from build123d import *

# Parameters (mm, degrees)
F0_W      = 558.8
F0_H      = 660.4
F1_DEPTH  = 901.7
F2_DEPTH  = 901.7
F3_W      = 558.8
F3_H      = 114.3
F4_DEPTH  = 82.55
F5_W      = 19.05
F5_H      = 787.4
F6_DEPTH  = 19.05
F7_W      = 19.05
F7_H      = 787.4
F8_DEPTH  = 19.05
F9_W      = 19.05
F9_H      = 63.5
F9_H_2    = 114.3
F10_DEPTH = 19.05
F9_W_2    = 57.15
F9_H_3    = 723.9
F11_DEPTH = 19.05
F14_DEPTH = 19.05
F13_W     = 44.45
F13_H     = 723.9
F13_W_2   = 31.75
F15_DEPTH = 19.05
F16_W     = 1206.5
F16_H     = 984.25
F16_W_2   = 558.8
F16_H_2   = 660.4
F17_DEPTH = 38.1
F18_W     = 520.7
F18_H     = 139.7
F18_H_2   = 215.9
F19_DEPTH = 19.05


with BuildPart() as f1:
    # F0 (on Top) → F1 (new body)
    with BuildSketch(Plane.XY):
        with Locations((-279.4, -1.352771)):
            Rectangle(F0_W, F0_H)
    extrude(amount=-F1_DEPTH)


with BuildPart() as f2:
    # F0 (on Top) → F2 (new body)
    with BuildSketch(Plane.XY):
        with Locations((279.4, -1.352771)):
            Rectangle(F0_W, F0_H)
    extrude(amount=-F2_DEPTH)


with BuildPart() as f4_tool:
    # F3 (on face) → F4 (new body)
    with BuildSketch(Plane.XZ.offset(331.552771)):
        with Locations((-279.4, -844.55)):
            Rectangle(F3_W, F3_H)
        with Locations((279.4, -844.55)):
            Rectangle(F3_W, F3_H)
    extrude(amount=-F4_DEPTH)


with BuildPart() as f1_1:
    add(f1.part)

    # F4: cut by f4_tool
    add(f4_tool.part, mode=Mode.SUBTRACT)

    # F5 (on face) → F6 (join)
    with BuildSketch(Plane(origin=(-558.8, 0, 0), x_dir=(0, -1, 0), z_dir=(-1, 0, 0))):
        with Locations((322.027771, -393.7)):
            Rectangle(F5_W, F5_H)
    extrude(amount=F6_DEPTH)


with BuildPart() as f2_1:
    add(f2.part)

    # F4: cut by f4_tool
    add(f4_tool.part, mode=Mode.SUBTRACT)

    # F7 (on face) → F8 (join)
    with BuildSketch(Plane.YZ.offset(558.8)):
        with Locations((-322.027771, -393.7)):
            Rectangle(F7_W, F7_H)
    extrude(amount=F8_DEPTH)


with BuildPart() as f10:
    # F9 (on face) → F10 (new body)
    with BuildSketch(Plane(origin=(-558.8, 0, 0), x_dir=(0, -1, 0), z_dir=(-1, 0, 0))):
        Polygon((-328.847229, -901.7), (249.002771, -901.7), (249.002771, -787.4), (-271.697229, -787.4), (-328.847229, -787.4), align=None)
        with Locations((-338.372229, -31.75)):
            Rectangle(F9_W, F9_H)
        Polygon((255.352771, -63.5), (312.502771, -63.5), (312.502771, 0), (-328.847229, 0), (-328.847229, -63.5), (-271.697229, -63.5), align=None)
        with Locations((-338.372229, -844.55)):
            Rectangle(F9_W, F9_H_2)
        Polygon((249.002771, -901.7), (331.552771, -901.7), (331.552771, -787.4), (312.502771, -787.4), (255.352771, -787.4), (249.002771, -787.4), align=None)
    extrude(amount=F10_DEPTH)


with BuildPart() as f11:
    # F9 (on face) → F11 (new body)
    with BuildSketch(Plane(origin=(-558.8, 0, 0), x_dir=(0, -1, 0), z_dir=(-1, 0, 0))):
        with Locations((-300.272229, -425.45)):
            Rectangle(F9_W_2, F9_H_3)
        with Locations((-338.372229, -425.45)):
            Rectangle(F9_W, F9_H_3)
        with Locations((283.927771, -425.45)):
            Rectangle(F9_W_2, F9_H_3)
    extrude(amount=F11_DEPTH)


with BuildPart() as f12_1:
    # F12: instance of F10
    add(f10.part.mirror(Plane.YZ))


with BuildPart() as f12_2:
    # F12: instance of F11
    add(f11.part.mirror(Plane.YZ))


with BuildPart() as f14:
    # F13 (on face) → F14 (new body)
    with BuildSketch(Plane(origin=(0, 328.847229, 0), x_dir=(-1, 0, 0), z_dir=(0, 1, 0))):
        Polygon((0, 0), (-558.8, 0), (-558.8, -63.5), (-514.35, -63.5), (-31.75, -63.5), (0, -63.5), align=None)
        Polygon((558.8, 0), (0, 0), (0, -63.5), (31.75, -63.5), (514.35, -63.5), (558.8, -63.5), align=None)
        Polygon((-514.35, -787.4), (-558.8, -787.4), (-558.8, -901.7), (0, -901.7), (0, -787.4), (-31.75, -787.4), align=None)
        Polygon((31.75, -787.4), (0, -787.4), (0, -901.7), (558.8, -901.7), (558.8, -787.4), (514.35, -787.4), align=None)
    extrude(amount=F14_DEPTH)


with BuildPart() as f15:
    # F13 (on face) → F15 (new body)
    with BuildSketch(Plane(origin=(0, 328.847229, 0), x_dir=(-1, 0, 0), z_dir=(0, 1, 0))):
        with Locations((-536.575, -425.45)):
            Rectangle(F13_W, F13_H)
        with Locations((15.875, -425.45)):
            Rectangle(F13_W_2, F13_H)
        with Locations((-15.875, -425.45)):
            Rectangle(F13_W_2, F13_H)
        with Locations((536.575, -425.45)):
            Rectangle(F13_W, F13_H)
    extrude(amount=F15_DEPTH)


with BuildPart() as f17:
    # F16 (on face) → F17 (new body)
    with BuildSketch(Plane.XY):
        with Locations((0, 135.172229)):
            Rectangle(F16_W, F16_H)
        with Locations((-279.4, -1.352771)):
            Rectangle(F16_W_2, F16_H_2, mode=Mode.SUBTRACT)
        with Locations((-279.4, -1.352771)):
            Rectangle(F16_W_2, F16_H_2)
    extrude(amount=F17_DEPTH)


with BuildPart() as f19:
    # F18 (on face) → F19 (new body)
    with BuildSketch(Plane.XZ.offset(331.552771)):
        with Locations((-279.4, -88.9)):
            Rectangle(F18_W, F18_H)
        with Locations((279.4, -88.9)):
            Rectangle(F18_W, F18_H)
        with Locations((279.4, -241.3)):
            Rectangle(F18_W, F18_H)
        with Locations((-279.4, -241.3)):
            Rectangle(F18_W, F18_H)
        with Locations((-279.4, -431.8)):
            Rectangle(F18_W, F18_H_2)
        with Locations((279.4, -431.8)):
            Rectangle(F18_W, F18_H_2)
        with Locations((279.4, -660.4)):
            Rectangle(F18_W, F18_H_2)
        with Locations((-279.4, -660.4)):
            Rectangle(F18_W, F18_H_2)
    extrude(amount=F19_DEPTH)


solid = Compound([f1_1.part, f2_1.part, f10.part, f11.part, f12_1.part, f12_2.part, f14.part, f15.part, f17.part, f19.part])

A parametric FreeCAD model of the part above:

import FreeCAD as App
import Part
import Sketcher
Q = App.Units.Quantity

doc = App.newDocument("Part")
body = doc.addObject("PartDesign::Body", "Body")

# Sketch on XY plane
sketch1 = body.newObject("Sketcher::SketchObject", "Sketch")
sketch1.AttachmentSupport = (doc.getObject("XY_Plane"), [""])
sketch1.MapMode = "FlatFace"
sketch1.addGeometry(Part.LineSegment(App.Vector(-559, 329, 0), App.Vector(-559, -332, 0)), False)
sketch1.addGeometry(Part.LineSegment(App.Vector(-559, -332, 0), App.Vector(0, -332, 0)), False)
sketch1.addGeometry(Part.LineSegment(App.Vector(0, -332, 0), App.Vector(0, 329, 0)), False)
sketch1.addGeometry(Part.LineSegment(App.Vector(0, 329, 0), App.Vector(-559, 329, 0)), False)
sketch1.addConstraint(Sketcher.Constraint("Coincident", 0, 2, 1, 1))
sketch1.addConstraint(Sketcher.Constraint("Coincident", 1, 2, 2, 1))
sketch1.addConstraint(Sketcher.Constraint("Coincident", 2, 2, 3, 1))
sketch1.addConstraint(Sketcher.Constraint("Coincident", 3, 2, 0, 1))
sketch1.addConstraint(Sketcher.Constraint("Vertical", 0))
sketch1.addConstraint(Sketcher.Constraint("Horizontal", 1))
sketch1.addConstraint(Sketcher.Constraint("Vertical", 2))
sketch1.addConstraint(Sketcher.Constraint("Horizontal", 3))
sketch1.addConstraint(Sketcher.Constraint("PointOnObject", 1, 2, -2))
sketch1.addConstraint(Sketcher.Constraint("DistanceX", 1, 1, 1, 2, Q("22 in")))
sketch1.addConstraint(Sketcher.Constraint("DistanceY", 0, 2, 0, 1, Q("26 in")))
sketch1.addConstraint(Sketcher.Constraint("DistanceY", 0, 2, -1, 1, 331.552771))
pad1 = body.newObject("PartDesign::Pad", "Pad")
pad1.Profile = sketch1
pad1.Length = Q("35.5 in")
pad1.Reversed = True
body2 = doc.addObject("PartDesign::Body", "Body001")

# Sketch on XY plane
sketch2 = body2.newObject("Sketcher::SketchObject", "Sketch001")
sketch2.AttachmentSupport = (doc.getObject("XY_Plane001"), [""])
sketch2.MapMode = "FlatFace"
sketch2.addGeometry(Part.LineSegment(App.Vector(0, 329, 0), App.Vector(0, -332, 0)), False)
sketch2.addGeometry(Part.LineSegment(App.Vector(0, -332, 0), App.Vector(559, -332, 0)), False)
sketch2.addGeometry(Part.LineSegment(App.Vector(559, -332, 0), App.Vector(559, 329, 0)), False)
sketch2.addGeometry(Part.LineSegment(App.Vector(559, 329, 0), App.Vector(0, 329, 0)), False)
sketch2.addConstraint(Sketcher.Constraint("Coincident", 0, 2, 1, 1))
sketch2.addConstraint(Sketcher.Constraint("Coincident", 1, 2, 2, 1))
sketch2.addConstraint(Sketcher.Constraint("Coincident", 2, 2, 3, 1))
sketch2.addConstraint(Sketcher.Constraint("Coincident", 3, 2, 0, 1))
sketch2.addConstraint(Sketcher.Constraint("Vertical", 0))
sketch2.addConstraint(Sketcher.Constraint("Horizontal", 1))
sketch2.addConstraint(Sketcher.Constraint("Vertical", 2))
sketch2.addConstraint(Sketcher.Constraint("Horizontal", 3))
sketch2.addConstraint(Sketcher.Constraint("PointOnObject", 0, 2, -2))
sketch2.addConstraint(Sketcher.Constraint("DistanceX", 1, 1, 1, 2, Q("22 in")))
sketch2.addConstraint(Sketcher.Constraint("DistanceY", 0, 2, 0, 1, Q("26 in")))
sketch2.addConstraint(Sketcher.Constraint("DistanceY", 0, 2, -1, 1, 331.552771))
pad2 = body2.newObject("PartDesign::Pad", "Pad001")
pad2.Profile = sketch2
pad2.Length = Q("35.5 in")
pad2.Reversed = True
body3 = doc.addObject("PartDesign::Body", "Body002")

# Sketch on XZ plane
sketch3 = body3.newObject("Sketcher::SketchObject", "Sketch002")
sketch3.AttachmentSupport = (doc.getObject("XZ_Plane002"), [""])
sketch3.MapMode = "FlatFace"
sketch3.AttachmentOffset = App.Placement(App.Vector(0, 0, 331.552771), App.Rotation())
sketch3.addGeometry(Part.LineSegment(App.Vector(-559, -787, 0), App.Vector(-559, -902, 0)), False)
sketch3.addGeometry(Part.LineSegment(App.Vector(-559, -902, 0), App.Vector(559, -902, 0)), False)
sketch3.addGeometry(Part.LineSegment(App.Vector(559, -902, 0), App.Vector(559, -787, 0)), False)
sketch3.addGeometry(Part.LineSegment(App.Vector(559, -787, 0), App.Vector(-559, -787, 0)), False)
sketch3.addConstraint(Sketcher.Constraint("Coincident", 0, 2, 1, 1))
sketch3.addConstraint(Sketcher.Constraint("Coincident", 1, 2, 2, 1))
sketch3.addConstraint(Sketcher.Constraint("Coincident", 2, 2, 3, 1))
sketch3.addConstraint(Sketcher.Constraint("Coincident", 3, 2, 0, 1))
sketch3.addConstraint(Sketcher.Constraint("Vertical", 0))
sketch3.addConstraint(Sketcher.Constraint("Horizontal", 1))
sketch3.addConstraint(Sketcher.Constraint("Vertical", 2))
sketch3.addConstraint(Sketcher.Constraint("Horizontal", 3))
sketch3.addConstraint(Sketcher.Constraint("DistanceX", 1, 1, 1, 2, Q("44 in")))
sketch3.addConstraint(Sketcher.Constraint("DistanceY", 0, 2, 0, 1, Q("4.5 in")))
sketch3.addConstraint(Sketcher.Constraint("DistanceX", 0, 2, -1, 1, Q("22 in")))
sketch3.addConstraint(Sketcher.Constraint("DistanceY", 2, 2, -1, 1, Q("31 in")))
pad3 = body3.newObject("PartDesign::Pad", "Pad002")
pad3.Profile = sketch3
pad3.Length = Q("3.25 in")
pad3.Reversed = True
doc.recompute()

body4 = doc.addObject("PartDesign::Body", "Body003")
body4.BaseFeature = body3
boolean = body.newObject("PartDesign::Boolean", "Boolean")
boolean.Type = "Cut"
boolean.addObjects([body4])
doc.recompute()

# Sketch on YZ plane
sketch4 = body.newObject("Sketcher::SketchObject", "Sketch003")
sketch4.AttachmentSupport = (doc.getObject("YZ_Plane"), [""])
sketch4.MapMode = "FlatFace"
sketch4.AttachmentOffset = App.Placement(App.Vector(0, 0, -22 * 25.4), App.Rotation())
sketch4.addGeometry(Part.LineSegment(App.Vector(-313, 0, 0), App.Vector(-313, -787, 0)), False)
sketch4.addGeometry(Part.LineSegment(App.Vector(-313, -787, 0), App.Vector(-332, -787, 0)), False)
sketch4.addGeometry(Part.LineSegment(App.Vector(-332, -787, 0), App.Vector(-332, 0, 0)), False)
sketch4.addGeometry(Part.LineSegment(App.Vector(-332, 0, 0), App.Vector(-313, 0, 0)), False)
sketch4.addConstraint(Sketcher.Constraint("Coincident", 0, 2, 1, 1))
sketch4.addConstraint(Sketcher.Constraint("Coincident", 1, 2, 2, 1))
sketch4.addConstraint(Sketcher.Constraint("Coincident", 2, 2, 3, 1))
sketch4.addConstraint(Sketcher.Constraint("Coincident", 3, 2, 0, 1))
sketch4.addConstraint(Sketcher.Constraint("Vertical", 0))
sketch4.addConstraint(Sketcher.Constraint("Horizontal", 1))
sketch4.addConstraint(Sketcher.Constraint("Vertical", 2))
sketch4.addConstraint(Sketcher.Constraint("Horizontal", 3))
sketch4.addConstraint(Sketcher.Constraint("PointOnObject", 2, 2, -1))
sketch4.addConstraint(Sketcher.Constraint("DistanceY", 0, 2, 0, 1, Q("31 in")))
sketch4.addConstraint(Sketcher.Constraint("DistanceX", 1, 2, 1, 1, Q("0.75 in")))
sketch4.addConstraint(Sketcher.Constraint("DistanceX", 0, 2, -1, 1, 312.502771))
pad4 = body.newObject("PartDesign::Pad", "Pad003")
pad4.Profile = sketch4
pad4.Length = Q("0.75 in")
pad4.Reversed = True
doc.recompute()

boolean2 = body2.newObject("PartDesign::Boolean", "Boolean001")
boolean2.Type = "Cut"
boolean2.addObjects([body3])

# Sketch on YZ plane
sketch5 = body2.newObject("Sketcher::SketchObject", "Sketch004")
sketch5.AttachmentSupport = (doc.getObject("YZ_Plane001"), [""])
sketch5.MapMode = "FlatFace"
sketch5.AttachmentOffset = App.Placement(App.Vector(0, 0, 22 * 25.4), App.Rotation())
sketch5.addGeometry(Part.LineSegment(App.Vector(-332, 0, 0), App.Vector(-332, -787, 0)), False)
sketch5.addGeometry(Part.LineSegment(App.Vector(-332, -787, 0), App.Vector(-313, -787, 0)), False)
sketch5.addGeometry(Part.LineSegment(App.Vector(-313, -787, 0), App.Vector(-313, 0, 0)), False)
sketch5.addGeometry(Part.LineSegment(App.Vector(-313, 0, 0), App.Vector(-332, 0, 0)), False)
sketch5.addConstraint(Sketcher.Constraint("Coincident", 0, 2, 1, 1))
sketch5.addConstraint(Sketcher.Constraint("Coincident", 1, 2, 2, 1))
sketch5.addConstraint(Sketcher.Constraint("Coincident", 2, 2, 3, 1))
sketch5.addConstraint(Sketcher.Constraint("Coincident", 3, 2, 0, 1))
sketch5.addConstraint(Sketcher.Constraint("Vertical", 0))
sketch5.addConstraint(Sketcher.Constraint("Horizontal", 1))
sketch5.addConstraint(Sketcher.Constraint("Vertical", 2))
sketch5.addConstraint(Sketcher.Constraint("Horizontal", 3))
sketch5.addConstraint(Sketcher.Constraint("PointOnObject", 2, 2, -1))
sketch5.addConstraint(Sketcher.Constraint("DistanceY", 0, 2, 0, 1, Q("31 in")))
sketch5.addConstraint(Sketcher.Constraint("DistanceX", 1, 1, 1, 2, Q("0.75 in")))
sketch5.addConstraint(Sketcher.Constraint("DistanceX", 0, 2, -1, 1, 331.552771))
pad5 = body2.newObject("PartDesign::Pad", "Pad004")
pad5.Profile = sketch5
pad5.Length = Q("0.75 in")
body5 = doc.addObject("PartDesign::Body", "Body004")
body5.AllowCompound = True

# Sketch on YZ plane
sketch6 = body5.newObject("Sketcher::SketchObject", "Sketch005")
sketch6.AttachmentSupport = (doc.getObject("YZ_Plane004"), [""])
sketch6.MapMode = "FlatFace"
sketch6.AttachmentOffset = App.Placement(App.Vector(0, 0, -22 * 25.4), App.Rotation())
sketch6.addGeometry(Part.LineSegment(App.Vector(348, -787, 0), App.Vector(348, -902, 0)), False)
sketch6.addGeometry(Part.LineSegment(App.Vector(348, -902, 0), App.Vector(-332, -902, 0)), False)
sketch6.addGeometry(Part.LineSegment(App.Vector(-332, -902, 0), App.Vector(-332, -787, 0)), False)
sketch6.addGeometry(Part.LineSegment(App.Vector(-332, -787, 0), App.Vector(348, -787, 0)), False)
sketch6.addGeometry(Part.LineSegment(App.Vector(348, 0, 0), App.Vector(348, -64, 0)), False)
sketch6.addGeometry(Part.LineSegment(App.Vector(348, -64, 0), App.Vector(-313, -64, 0)), False)
sketch6.addGeometry(Part.LineSegment(App.Vector(-313, -64, 0), App.Vector(-313, 0, 0)), False)
sketch6.addGeometry(Part.LineSegment(App.Vector(-313, 0, 0), App.Vector(348, 0, 0)), False)
sketch6.addConstraint(Sketcher.Constraint("Coincident", 0, 2, 1, 1))
sketch6.addConstraint(Sketcher.Constraint("Coincident", 1, 2, 2, 1))
sketch6.addConstraint(Sketcher.Constraint("Coincident", 2, 2, 3, 1))
sketch6.addConstraint(Sketcher.Constraint("Coincident", 3, 2, 0, 1))
sketch6.addConstraint(Sketcher.Constraint("Coincident", 4, 2, 5, 1))
sketch6.addConstraint(Sketcher.Constraint("Coincident", 5, 2, 6, 1))
sketch6.addConstraint(Sketcher.Constraint("Coincident", 6, 2, 7, 1))
sketch6.addConstraint(Sketcher.Constraint("Coincident", 7, 2, 4, 1))
sketch6.addConstraint(Sketcher.Constraint("Vertical", 0))
sketch6.addConstraint(Sketcher.Constraint("Horizontal", 1))
sketch6.addConstraint(Sketcher.Constraint("Vertical", 2))
sketch6.addConstraint(Sketcher.Constraint("Horizontal", 3))
sketch6.addConstraint(Sketcher.Constraint("Vertical", 4))
sketch6.addConstraint(Sketcher.Constraint("Horizontal", 5))
sketch6.addConstraint(Sketcher.Constraint("Vertical", 6))
sketch6.addConstraint(Sketcher.Constraint("Horizontal", 7))
sketch6.addConstraint(Sketcher.Constraint("PointOnObject", 6, 2, -1))
sketch6.addConstraint(Sketcher.Constraint("Vertical", 3, 2, 4, 2))
sketch6.addConstraint(Sketcher.Constraint("DistanceX", 5, 2, 5, 1, Q("26 in")))
sketch6.addConstraint(Sketcher.Constraint("DistanceY", 0, 2, 0, 1, Q("4.5 in")))
sketch6.addConstraint(Sketcher.Constraint("DistanceY", 4, 2, 4, 1, Q("2.5 in")))
sketch6.addConstraint(Sketcher.Constraint("DistanceY", 2, 2, -1, 1, Q("31 in")))
sketch6.addConstraint(Sketcher.Constraint("DistanceX", 1, 2, 1, 1, Q("26.75 in")))
sketch6.addConstraint(Sketcher.Constraint("DistanceX", -1, 1, 0, 2, 347.897229))
pad6 = body5.newObject("PartDesign::Pad", "Pad005")
pad6.Profile = sketch6
pad6.Length = Q("0.75 in")
pad6.Reversed = True
body6 = doc.addObject("PartDesign::Body", "Body005")
body6.AllowCompound = True

# Sketch on YZ plane
sketch7 = body6.newObject("Sketcher::SketchObject", "Sketch006")
sketch7.AttachmentSupport = (doc.getObject("YZ_Plane005"), [""])
sketch7.MapMode = "FlatFace"
sketch7.AttachmentOffset = App.Placement(App.Vector(0, 0, -22 * 25.4), App.Rotation())
sketch7.addGeometry(Part.LineSegment(App.Vector(272, -787, 0), App.Vector(272, -64, 0)), False)
sketch7.addGeometry(Part.LineSegment(App.Vector(272, -64, 0), App.Vector(348, -64, 0)), False)
sketch7.addGeometry(Part.LineSegment(App.Vector(348, -64, 0), App.Vector(348, -787, 0)), False)
sketch7.addGeometry(Part.LineSegment(App.Vector(348, -787, 0), App.Vector(272, -787, 0)), False)
sketch7.addGeometry(Part.LineSegment(App.Vector(-255, -64, 0), App.Vector(-255, -787, 0)), False)
sketch7.addGeometry(Part.LineSegment(App.Vector(-255, -787, 0), App.Vector(-313, -787, 0)), False)
sketch7.addGeometry(Part.LineSegment(App.Vector(-313, -787, 0), App.Vector(-313, -64, 0)), False)
sketch7.addGeometry(Part.LineSegment(App.Vector(-313, -64, 0), App.Vector(-255, -64, 0)), False)
sketch7.addConstraint(Sketcher.Constraint("Coincident", 0, 2, 1, 1))
sketch7.addConstraint(Sketcher.Constraint("Coincident", 1, 2, 2, 1))
sketch7.addConstraint(Sketcher.Constraint("Coincident", 2, 2, 3, 1))
sketch7.addConstraint(Sketcher.Constraint("Coincident", 3, 2, 0, 1))
sketch7.addConstraint(Sketcher.Constraint("Coincident", 4, 2, 5, 1))
sketch7.addConstraint(Sketcher.Constraint("Coincident", 5, 2, 6, 1))
sketch7.addConstraint(Sketcher.Constraint("Coincident", 6, 2, 7, 1))
sketch7.addConstraint(Sketcher.Constraint("Coincident", 7, 2, 4, 1))
sketch7.addConstraint(Sketcher.Constraint("Vertical", 0))
sketch7.addConstraint(Sketcher.Constraint("Horizontal", 1))
sketch7.addConstraint(Sketcher.Constraint("Vertical", 2))
sketch7.addConstraint(Sketcher.Constraint("Horizontal", 3))
sketch7.addConstraint(Sketcher.Constraint("Vertical", 4))
sketch7.addConstraint(Sketcher.Constraint("Horizontal", 5))
sketch7.addConstraint(Sketcher.Constraint("Vertical", 6))
sketch7.addConstraint(Sketcher.Constraint("Horizontal", 7))
sketch7.addConstraint(Sketcher.Constraint("Horizontal", 3, 2, 4, 2))
sketch7.addConstraint(Sketcher.Constraint("Horizontal", 1, 2, 6, 2))
sketch7.addConstraint(Sketcher.Constraint("DistanceX", 1, 1, 1, 2, Q("3 in")))
sketch7.addConstraint(Sketcher.Constraint("DistanceY", 0, 1, 0, 2, Q("28.5 in")))
sketch7.addConstraint(Sketcher.Constraint("DistanceY", 2, 2, -1, 1, Q("31 in")))
sketch7.addConstraint(Sketcher.Constraint("DistanceX", 5, 2, 3, 2, Q("23 in")))
sketch7.addConstraint(Sketcher.Constraint("DistanceX", 5, 2, 5, 1, Q("2.25 in")))
sketch7.addConstraint(Sketcher.Constraint("DistanceX", -1, 1, 0, 2, 271.697229))
pad7 = body6.newObject("PartDesign::Pad", "Pad006")
pad7.Profile = sketch7
pad7.Length = Q("0.75 in")
pad7.Reversed = True
body7 = doc.addObject("PartDesign::Body", "Body006")
body7.AllowCompound = True
doc.recompute()

mirroring = doc.addObject("Part::Mirroring", "Mirroring")
mirroring.Source = body5
mirroring.Base = App.Vector(0, 0, 0)
mirroring.Normal = App.Vector(1, 0, 0)
body7.BaseFeature = mirroring
doc.recompute()
body8 = doc.addObject("PartDesign::Body", "Body007")
body8.AllowCompound = True
doc.recompute()

mirroring2 = doc.addObject("Part::Mirroring", "Mirroring001")
mirroring2.Source = body6
mirroring2.Base = App.Vector(0, 0, 0)
mirroring2.Normal = App.Vector(1, 0, 0)
body8.BaseFeature = mirroring2
doc.recompute()
body9 = doc.addObject("PartDesign::Body", "Body008")
body9.AllowCompound = True

# Sketch on XZ plane
sketch8 = body9.newObject("Sketcher::SketchObject", "Sketch007")
sketch8.AttachmentSupport = (doc.getObject("XZ_Plane008"), [""])
sketch8.MapMode = "FlatFace"
sketch8.AttachmentOffset = App.Placement(App.Vector(0, 0, -328.847229), App.Rotation())
sketch8.addGeometry(Part.LineSegment(App.Vector(559, 0, 0), App.Vector(559, -64, 0)), False)
sketch8.addGeometry(Part.LineSegment(App.Vector(559, -64, 0), App.Vector(-559, -64, 0)), False)
sketch8.addGeometry(Part.LineSegment(App.Vector(-559, -64, 0), App.Vector(-559, 0, 0)), False)
sketch8.addGeometry(Part.LineSegment(App.Vector(-559, 0, 0), App.Vector(559, 0, 0)), False)
sketch8.addGeometry(Part.LineSegment(App.Vector(559, -787, 0), App.Vector(559, -902, 0)), False)
sketch8.addGeometry(Part.LineSegment(App.Vector(559, -902, 0), App.Vector(-559, -902, 0)), False)
sketch8.addGeometry(Part.LineSegment(App.Vector(-559, -902, 0), App.Vector(-559, -787, 0)), False)
sketch8.addGeometry(Part.LineSegment(App.Vector(-559, -787, 0), App.Vector(559, -787, 0)), False)
sketch8.addConstraint(Sketcher.Constraint("Coincident", 0, 2, 1, 1))
sketch8.addConstraint(Sketcher.Constraint("Coincident", 1, 2, 2, 1))
sketch8.addConstraint(Sketcher.Constraint("Coincident", 2, 2, 3, 1))
sketch8.addConstraint(Sketcher.Constraint("Coincident", 3, 2, 0, 1))
sketch8.addConstraint(Sketcher.Constraint("Coincident", 4, 2, 5, 1))
sketch8.addConstraint(Sketcher.Constraint("Coincident", 5, 2, 6, 1))
sketch8.addConstraint(Sketcher.Constraint("Coincident", 6, 2, 7, 1))
sketch8.addConstraint(Sketcher.Constraint("Coincident", 7, 2, 4, 1))
sketch8.addConstraint(Sketcher.Constraint("Vertical", 0))
sketch8.addConstraint(Sketcher.Constraint("Horizontal", 1))
sketch8.addConstraint(Sketcher.Constraint("Vertical", 2))
sketch8.addConstraint(Sketcher.Constraint("Horizontal", 3))
sketch8.addConstraint(Sketcher.Constraint("Vertical", 4))
sketch8.addConstraint(Sketcher.Constraint("Horizontal", 5))
sketch8.addConstraint(Sketcher.Constraint("Vertical", 6))
sketch8.addConstraint(Sketcher.Constraint("Horizontal", 7))
sketch8.addConstraint(Sketcher.Constraint("Symmetric", 2, 2, 3, 2, -1, 1))
sketch8.addConstraint(Sketcher.Constraint("Vertical", 3, 2, 4, 2))
sketch8.addConstraint(Sketcher.Constraint("Vertical", 2, 2, 5, 2))
sketch8.addConstraint(Sketcher.Constraint("DistanceX", 1, 2, 1, 1, Q("44 in")))
sketch8.addConstraint(Sketcher.Constraint("DistanceY", 0, 2, 0, 1, Q("2.5 in")))
sketch8.addConstraint(Sketcher.Constraint("DistanceY", 4, 2, 4, 1, Q("4.5 in")))
sketch8.addConstraint(Sketcher.Constraint("DistanceY", 6, 2, -1, 1, Q("31 in")))
pad8 = body9.newObject("PartDesign::Pad", "Pad007")
pad8.Profile = sketch8
pad8.Length = Q("0.75 in")
pad8.Reversed = True
body10 = doc.addObject("PartDesign::Body", "Body009")
body10.AllowCompound = True

# Sketch on XZ plane
sketch9 = body10.newObject("Sketcher::SketchObject", "Sketch008")
sketch9.AttachmentSupport = (doc.getObject("XZ_Plane009"), [""])
sketch9.MapMode = "FlatFace"
sketch9.AttachmentOffset = App.Placement(App.Vector(0, 0, -328.847229), App.Rotation())
sketch9.addGeometry(Part.LineSegment(App.Vector(559, -64, 0), App.Vector(559, -787, 0)), False)
sketch9.addGeometry(Part.LineSegment(App.Vector(559, -787, 0), App.Vector(514, -787, 0)), False)
sketch9.addGeometry(Part.LineSegment(App.Vector(514, -787, 0), App.Vector(514, -64, 0)), False)
sketch9.addGeometry(Part.LineSegment(App.Vector(514, -64, 0), App.Vector(559, -64, 0)), False)
sketch9.addGeometry(Part.LineSegment(App.Vector(-32, -787, 0), App.Vector(-32, -64, 0)), False)
sketch9.addGeometry(Part.LineSegment(App.Vector(-32, -64, 0), App.Vector(32, -64, 0)), False)
sketch9.addGeometry(Part.LineSegment(App.Vector(32, -64, 0), App.Vector(32, -787, 0)), False)
sketch9.addGeometry(Part.LineSegment(App.Vector(32, -787, 0), App.Vector(-32, -787, 0)), False)
sketch9.addGeometry(Part.LineSegment(App.Vector(-514, -64, 0), App.Vector(-514, -787, 0)), False)
sketch9.addGeometry(Part.LineSegment(App.Vector(-514, -787, 0), App.Vector(-559, -787, 0)), False)
sketch9.addGeometry(Part.LineSegment(App.Vector(-559, -787, 0), App.Vector(-559, -64, 0)), False)
sketch9.addGeometry(Part.LineSegment(App.Vector(-559, -64, 0), App.Vector(-514, -64, 0)), False)
sketch9.addConstraint(Sketcher.Constraint("Coincident", 0, 2, 1, 1))
sketch9.addConstraint(Sketcher.Constraint("Coincident", 1, 2, 2, 1))
sketch9.addConstraint(Sketcher.Constraint("Coincident", 2, 2, 3, 1))
sketch9.addConstraint(Sketcher.Constraint("Coincident", 3, 2, 0, 1))
sketch9.addConstraint(Sketcher.Constraint("Coincident", 4, 2, 5, 1))
sketch9.addConstraint(Sketcher.Constraint("Coincident", 5, 2, 6, 1))
sketch9.addConstraint(Sketcher.Constraint("Coincident", 6, 2, 7, 1))
sketch9.addConstraint(Sketcher.Constraint("Coincident", 7, 2, 4, 1))
sketch9.addConstraint(Sketcher.Constraint("Coincident", 8, 2, 9, 1))
sketch9.addConstraint(Sketcher.Constraint("Coincident", 9, 2, 10, 1))
sketch9.addConstraint(Sketcher.Constraint("Coincident", 10, 2, 11, 1))
sketch9.addConstraint(Sketcher.Constraint("Coincident", 11, 2, 8, 1))
sketch9.addConstraint(Sketcher.Constraint("Vertical", 0))
sketch9.addConstraint(Sketcher.Constraint("Horizontal", 1))
sketch9.addConstraint(Sketcher.Constraint("Vertical", 2))
sketch9.addConstraint(Sketcher.Constraint("Horizontal", 3))
sketch9.addConstraint(Sketcher.Constraint("Vertical", 4))
sketch9.addConstraint(Sketcher.Constraint("Horizontal", 5))
sketch9.addConstraint(Sketcher.Constraint("Vertical", 6))
sketch9.addConstraint(Sketcher.Constraint("Horizontal", 7))
sketch9.addConstraint(Sketcher.Constraint("Vertical", 8))
sketch9.addConstraint(Sketcher.Constraint("Horizontal", 9))
sketch9.addConstraint(Sketcher.Constraint("Vertical", 10))
sketch9.addConstraint(Sketcher.Constraint("Horizontal", 11))
sketch9.addConstraint(Sketcher.Constraint("Symmetric", 1, 2, 8, 2, -2))
sketch9.addConstraint(Sketcher.Constraint("Symmetric", 3, 2, 10, 2, -2))
sketch9.addConstraint(Sketcher.Constraint("Horizontal", 3, 2, 4, 2))
sketch9.addConstraint(Sketcher.Constraint("Horizontal", 1, 2, 6, 2))
sketch9.addConstraint(Sketcher.Constraint("DistanceX", 5, 1, 5, 2, Q("2.5 in")))
sketch9.addConstraint(Sketcher.Constraint("DistanceY", 0, 2, 0, 1, Q("28.5 in")))
sketch9.addConstraint(Sketcher.Constraint("DistanceX", -1, 1, 0, 2, Q("22 in")))
sketch9.addConstraint(Sketcher.Constraint("DistanceY", 0, 2, -1, 1, Q("31 in")))
sketch9.addConstraint(Sketcher.Constraint("DistanceX", 5, 2, 2, 2, Q("19 in")))
sketch9.addConstraint(Sketcher.Constraint("DistanceX", 8, 2, 7, 2, Q("19 in")))
pad9 = body10.newObject("PartDesign::Pad", "Pad008")
pad9.Profile = sketch9
pad9.Length = Q("0.75 in")
pad9.Reversed = True
body11 = doc.addObject("PartDesign::Body", "Body010")

# Sketch on XY plane
sketch10 = body11.newObject("Sketcher::SketchObject", "Sketch009")
sketch10.AttachmentSupport = (doc.getObject("XY_Plane010"), [""])
sketch10.MapMode = "FlatFace"
sketch10.addGeometry(Part.LineSegment(App.Vector(-603, 627, 0), App.Vector(-603, -357, 0)), False)
sketch10.addGeometry(Part.LineSegment(App.Vector(-603, -357, 0), App.Vector(603, -357, 0)), False)
sketch10.addGeometry(Part.LineSegment(App.Vector(603, -357, 0), App.Vector(603, 627, 0)), False)
sketch10.addGeometry(Part.LineSegment(App.Vector(603, 627, 0), App.Vector(-603, 627, 0)), False)
sketch10.addConstraint(Sketcher.Constraint("Coincident", 0, 2, 1, 1))
sketch10.addConstraint(Sketcher.Constraint("Coincident", 1, 2, 2, 1))
sketch10.addConstraint(Sketcher.Constraint("Coincident", 2, 2, 3, 1))
sketch10.addConstraint(Sketcher.Constraint("Coincident", 3, 2, 0, 1))
sketch10.addConstraint(Sketcher.Constraint("Vertical", 0))
sketch10.addConstraint(Sketcher.Constraint("Horizontal", 1))
sketch10.addConstraint(Sketcher.Constraint("Vertical", 2))
sketch10.addConstraint(Sketcher.Constraint("Horizontal", 3))
sketch10.addConstraint(Sketcher.Constraint("DistanceX", 1, 1, 1, 2, Q("47.5 in")))
sketch10.addConstraint(Sketcher.Constraint("DistanceY", 0, 2, 0, 1, Q("38.75 in")))
sketch10.addConstraint(Sketcher.Constraint("DistanceX", 0, 2, -1, 1, Q("23.75 in")))
sketch10.addConstraint(Sketcher.Constraint("DistanceY", 0, 2, -1, 1, 356.952771))
pad10 = body11.newObject("PartDesign::Pad", "Pad009")
pad10.Profile = sketch10
pad10.Length = Q("1.5 in")
body12 = doc.addObject("PartDesign::Body", "Body011")
body12.AllowCompound = True

# Sketch on XZ plane
sketch11 = body12.newObject("Sketcher::SketchObject", "Sketch010")
sketch11.AttachmentSupport = (doc.getObject("XZ_Plane011"), [""])
sketch11.MapMode = "FlatFace"
sketch11.AttachmentOffset = App.Placement(App.Vector(0, 0, 331.552771), App.Rotation())
sketch11.addGeometry(Part.LineSegment(App.Vector(-540, -19, 0), App.Vector(-540, -159, 0)), False)
sketch11.addGeometry(Part.LineSegment(App.Vector(-540, -159, 0), App.Vector(-19, -159, 0)), False)
sketch11.addGeometry(Part.LineSegment(App.Vector(-19, -159, 0), App.Vector(-19, -19, 0)), False)
sketch11.addGeometry(Part.LineSegment(App.Vector(-19, -19, 0), App.Vector(-540, -19, 0)), False)
sketch11.addGeometry(Part.LineSegment(App.Vector(19, -19, 0), App.Vector(19, -159, 0)), False)
sketch11.addGeometry(Part.LineSegment(App.Vector(19, -159, 0), App.Vector(540, -159, 0)), False)
sketch11.addGeometry(Part.LineSegment(App.Vector(540, -159, 0), App.Vector(540, -19, 0)), False)
sketch11.addGeometry(Part.LineSegment(App.Vector(540, -19, 0), App.Vector(19, -19, 0)), False)
sketch11.addGeometry(Part.LineSegment(App.Vector(19, -171, 0), App.Vector(19, -311, 0)), False)
sketch11.addGeometry(Part.LineSegment(App.Vector(19, -311, 0), App.Vector(540, -311, 0)), False)
sketch11.addGeometry(Part.LineSegment(App.Vector(540, -311, 0), App.Vector(540, -171, 0)), False)
sketch11.addGeometry(Part.LineSegment(App.Vector(540, -171, 0), App.Vector(19, -171, 0)), False)
sketch11.addGeometry(Part.LineSegment(App.Vector(-540, -171, 0), App.Vector(-540, -311, 0)), False)
sketch11.addGeometry(Part.LineSegment(App.Vector(-540, -311, 0), App.Vector(-19, -311, 0)), False)
sketch11.addGeometry(Part.LineSegment(App.Vector(-19, -311, 0), App.Vector(-19, -171, 0)), False)
sketch11.addGeometry(Part.LineSegment(App.Vector(-19, -171, 0), App.Vector(-540, -171, 0)), False)
sketch11.addGeometry(Part.LineSegment(App.Vector(-540, -324, 0), App.Vector(-540, -540, 0)), False)
sketch11.addGeometry(Part.LineSegment(App.Vector(-540, -540, 0), App.Vector(-19, -540, 0)), False)
sketch11.addGeometry(Part.LineSegment(App.Vector(-19, -540, 0), App.Vector(-19, -324, 0)), False)
sketch11.addGeometry(Part.LineSegment(App.Vector(-19, -324, 0), App.Vector(-540, -324, 0)), False)
sketch11.addGeometry(Part.LineSegment(App.Vector(19, -324, 0), App.Vector(19, -540, 0)), False)
sketch11.addGeometry(Part.LineSegment(App.Vector(19, -540, 0), App.Vector(540, -540, 0)), False)
sketch11.addGeometry(Part.LineSegment(App.Vector(540, -540, 0), App.Vector(540, -324, 0)), False)
sketch11.addGeometry(Part.LineSegment(App.Vector(540, -324, 0), App.Vector(19, -324, 0)), False)
sketch11.addGeometry(Part.LineSegment(App.Vector(19, -552, 0), App.Vector(19, -768, 0)), False)
sketch11.addGeometry(Part.LineSegment(App.Vector(19, -768, 0), App.Vector(540, -768, 0)), False)
sketch11.addGeometry(Part.LineSegment(App.Vector(540, -768, 0), App.Vector(540, -552, 0)), False)
sketch11.addGeometry(Part.LineSegment(App.Vector(540, -552, 0), App.Vector(19, -552, 0)), False)
sketch11.addGeometry(Part.LineSegment(App.Vector(-540, -552, 0), App.Vector(-540, -768, 0)), False)
sketch11.addGeometry(Part.LineSegment(App.Vector(-540, -768, 0), App.Vector(-19, -768, 0)), False)
sketch11.addGeometry(Part.LineSegment(App.Vector(-19, -768, 0), App.Vector(-19, -552, 0)), False)
sketch11.addGeometry(Part.LineSegment(App.Vector(-19, -552, 0), App.Vector(-540, -552, 0)), False)
sketch11.addConstraint(Sketcher.Constraint("Coincident", 0, 2, 1, 1))
sketch11.addConstraint(Sketcher.Constraint("Coincident", 1, 2, 2, 1))
sketch11.addConstraint(Sketcher.Constraint("Coincident", 2, 2, 3, 1))
sketch11.addConstraint(Sketcher.Constraint("Coincident", 3, 2, 0, 1))
sketch11.addConstraint(Sketcher.Constraint("Coincident", 4, 2, 5, 1))
sketch11.addConstraint(Sketcher.Constraint("Coincident", 5, 2, 6, 1))
sketch11.addConstraint(Sketcher.Constraint("Coincident", 6, 2, 7, 1))
sketch11.addConstraint(Sketcher.Constraint("Coincident", 7, 2, 4, 1))
sketch11.addConstraint(Sketcher.Constraint("Coincident", 8, 2, 9, 1))
sketch11.addConstraint(Sketcher.Constraint("Coincident", 9, 2, 10, 1))
sketch11.addConstraint(Sketcher.Constraint("Coincident", 10, 2, 11, 1))
sketch11.addConstraint(Sketcher.Constraint("Coincident", 11, 2, 8, 1))
sketch11.addConstraint(Sketcher.Constraint("Coincident", 12, 2, 13, 1))
sketch11.addConstraint(Sketcher.Constraint("Coincident", 13, 2, 14, 1))
sketch11.addConstraint(Sketcher.Constraint("Coincident", 14, 2, 15, 1))
sketch11.addConstraint(Sketcher.Constraint("Coincident", 15, 2, 12, 1))
sketch11.addConstraint(Sketcher.Constraint("Coincident", 16, 2, 17, 1))
sketch11.addConstraint(Sketcher.Constraint("Coincident", 17, 2, 18, 1))
sketch11.addConstraint(Sketcher.Constraint("Coincident", 18, 2, 19, 1))
sketch11.addConstraint(Sketcher.Constraint("Coincident", 19, 2, 16, 1))
sketch11.addConstraint(Sketcher.Constraint("Coincident", 20, 2, 21, 1))
sketch11.addConstraint(Sketcher.Constraint("Coincident", 21, 2, 22, 1))
sketch11.addConstraint(Sketcher.Constraint("Coincident", 22, 2, 23, 1))
sketch11.addConstraint(Sketcher.Constraint("Coincident", 23, 2, 20, 1))
sketch11.addConstraint(Sketcher.Constraint("Coincident", 24, 2, 25, 1))
sketch11.addConstraint(Sketcher.Constraint("Coincident", 25, 2, 26, 1))
sketch11.addConstraint(Sketcher.Constraint("Coincident", 26, 2, 27, 1))
sketch11.addConstraint(Sketcher.Constraint("Coincident", 27, 2, 24, 1))
sketch11.addConstraint(Sketcher.Constraint("Coincident", 28, 2, 29, 1))
sketch11.addConstraint(Sketcher.Constraint("Coincident", 29, 2, 30, 1))
sketch11.addConstraint(Sketcher.Constraint("Coincident", 30, 2, 31, 1))
sketch11.addConstraint(Sketcher.Constraint("Coincident", 31, 2, 28, 1))
sketch11.addConstraint(Sketcher.Constraint("Vertical", 0))
sketch11.addConstraint(Sketcher.Constraint("Horizontal", 1))
sketch11.addConstraint(Sketcher.Constraint("Vertical", 2))
sketch11.addConstraint(Sketcher.Constraint("Horizontal", 3))
sketch11.addConstraint(Sketcher.Constraint("Vertical", 4))
sketch11.addConstraint(Sketcher.Constraint("Horizontal", 5))
sketch11.addConstraint(Sketcher.Constraint("Vertical", 6))
sketch11.addConstraint(Sketcher.Constraint("Horizontal", 7))
sketch11.addConstraint(Sketcher.Constraint("Vertical", 8))
sketch11.addConstraint(Sketcher.Constraint("Horizontal", 9))
sketch11.addConstraint(Sketcher.Constraint("Vertical", 10))
sketch11.addConstraint(Sketcher.Constraint("Horizontal", 11))
sketch11.addConstraint(Sketcher.Constraint("Vertical", 12))
sketch11.addConstraint(Sketcher.Constraint("Horizontal", 13))
sketch11.addConstraint(Sketcher.Constraint("Vertical", 14))
sketch11.addConstraint(Sketcher.Constraint("Horizontal", 15))
sketch11.addConstraint(Sketcher.Constraint("Vertical", 16))
sketch11.addConstraint(Sketcher.Constraint("Horizontal", 17))
sketch11.addConstraint(Sketcher.Constraint("Vertical", 18))
sketch11.addConstraint(Sketcher.Constraint("Horizontal", 19))
sketch11.addConstraint(Sketcher.Constraint("Vertical", 20))
sketch11.addConstraint(Sketcher.Constraint("Horizontal", 21))
sketch11.addConstraint(Sketcher.Constraint("Vertical", 22))
sketch11.addConstraint(Sketcher.Constraint("Horizontal", 23))
sketch11.addConstraint(Sketcher.Constraint("Vertical", 24))
sketch11.addConstraint(Sketcher.Constraint("Horizontal", 25))
sketch11.addConstraint(Sketcher.Constraint("Vertical", 26))
sketch11.addConstraint(Sketcher.Constraint("Horizontal", 27))
sketch11.addConstraint(Sketcher.Constraint("Vertical", 28))
sketch11.addConstraint(Sketcher.Constraint("Horizontal", 29))
sketch11.addConstraint(Sketcher.Constraint("Vertical", 30))
sketch11.addConstraint(Sketcher.Constraint("Horizontal", 31))
sketch11.addConstraint(Sketcher.Constraint("Symmetric", 1, 2, 4, 2, -2))
sketch11.addConstraint(Sketcher.Constraint("Symmetric", 3, 2, 6, 2, -2))
sketch11.addConstraint(Sketcher.Constraint("Symmetric", 9, 2, 12, 2, -2))
sketch11.addConstraint(Sketcher.Constraint("Symmetric", 11, 2, 14, 2, -2))
sketch11.addConstraint(Sketcher.Constraint("Symmetric", 17, 2, 20, 2, -2))
sketch11.addConstraint(Sketcher.Constraint("Symmetric", 19, 2, 22, 2, -2))
sketch11.addConstraint(Sketcher.Constraint("Symmetric", 25, 2, 28, 2, -2))
sketch11.addConstraint(Sketcher.Constraint("Symmetric", 27, 2, 30, 2, -2))
sketch11.addConstraint(Sketcher.Constraint("Vertical", 7, 2, 8, 2))
sketch11.addConstraint(Sketcher.Constraint("Vertical", 6, 2, 9, 2))
sketch11.addConstraint(Sketcher.Constraint("Vertical", 15, 2, 16, 2))
sketch11.addConstraint(Sketcher.Constraint("Vertical", 14, 2, 17, 2))
sketch11.addConstraint(Sketcher.Constraint("Vertical", 23, 2, 24, 2))
sketch11.addConstraint(Sketcher.Constraint("Vertical", 22, 2, 25, 2))
sketch11.addConstraint(Sketcher.Constraint("Equal", 6, 8))
sketch11.addConstraint(Sketcher.Constraint("Equal", 22, 24))
sketch11.addConstraint(Sketcher.Constraint("DistanceX", 1, 1, 1, 2, Q("20.5 in")))
sketch11.addConstraint(Sketcher.Constraint("DistanceY", 0, 2, 0, 1, Q("5.5 in")))
sketch11.addConstraint(Sketcher.Constraint("DistanceY", 16, 2, 16, 1, Q("8.5 in")))
sketch11.addConstraint(Sketcher.Constraint("DistanceX", 0, 2, 4, 2, Q("22 in")))
sketch11.addConstraint(Sketcher.Constraint("DistanceY", 8, 2, 4, 2, Q("6 in")))
sketch11.addConstraint(Sketcher.Constraint("DistanceY", 16, 2, 12, 2, Q("9 in")))
sketch11.addConstraint(Sketcher.Constraint("DistanceY", 24, 2, 20, 2, Q("9 in")))
sketch11.addConstraint(Sketcher.Constraint("DistanceY", 0, 2, -1, 1, Q("6.25 in")))
pad11 = body12.newObject("PartDesign::Pad", "Pad010")
pad11.Profile = sketch11
pad11.Length = Q("0.75 in")
mirroring.Visibility = False
mirroring2.Visibility = False

doc.recompute()
